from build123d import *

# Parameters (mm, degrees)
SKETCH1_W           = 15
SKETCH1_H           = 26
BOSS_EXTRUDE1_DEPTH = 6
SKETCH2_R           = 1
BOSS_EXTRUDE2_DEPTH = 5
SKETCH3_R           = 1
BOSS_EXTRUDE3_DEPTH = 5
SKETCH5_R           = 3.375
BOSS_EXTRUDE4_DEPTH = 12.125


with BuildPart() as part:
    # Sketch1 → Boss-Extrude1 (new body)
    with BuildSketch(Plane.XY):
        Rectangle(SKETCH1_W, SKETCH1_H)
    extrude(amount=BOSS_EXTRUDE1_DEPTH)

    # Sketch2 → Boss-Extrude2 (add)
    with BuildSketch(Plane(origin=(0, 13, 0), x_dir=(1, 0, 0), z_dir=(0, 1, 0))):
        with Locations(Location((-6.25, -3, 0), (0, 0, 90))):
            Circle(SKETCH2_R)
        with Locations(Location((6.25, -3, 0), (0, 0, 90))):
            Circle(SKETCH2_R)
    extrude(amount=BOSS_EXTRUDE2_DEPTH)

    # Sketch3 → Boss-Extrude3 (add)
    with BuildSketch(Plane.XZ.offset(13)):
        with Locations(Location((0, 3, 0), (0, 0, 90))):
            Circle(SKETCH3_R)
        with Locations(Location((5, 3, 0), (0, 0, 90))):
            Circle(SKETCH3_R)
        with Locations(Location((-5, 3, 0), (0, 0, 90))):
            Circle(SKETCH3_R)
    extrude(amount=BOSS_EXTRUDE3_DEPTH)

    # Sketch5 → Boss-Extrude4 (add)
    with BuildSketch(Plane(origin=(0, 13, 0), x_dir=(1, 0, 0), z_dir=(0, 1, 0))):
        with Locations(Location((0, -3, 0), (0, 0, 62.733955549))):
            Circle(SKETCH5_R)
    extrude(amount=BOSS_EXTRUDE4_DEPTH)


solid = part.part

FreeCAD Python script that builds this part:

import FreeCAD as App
import Part
import Sketcher

doc = App.newDocument("Part")
body = doc.addObject("PartDesign::Body", "Body")

# Sketch on XY plane
sketch1 = body.newObject("Sketcher::SketchObject", "Sketch")
sketch1.AttachmentSupport = (doc.getObject("XY_Plane"), [""])
sketch1.MapMode = "FlatFace"
sketch1.addGeometry([
    Part.LineSegment(App.Vector(-8, 13, 0), App.Vector(-8, -13, 0)),
    Part.LineSegment(App.Vector(-8, -13, 0), App.Vector(8, -13, 0)),
    Part.LineSegment(App.Vector(8, -13, 0), App.Vector(8, 13, 0)),
    Part.LineSegment(App.Vector(8, 13, 0), App.Vector(-8, 13, 0)),
], False)
sketch1.addConstraint([
    Sketcher.Constraint("Coincident", 0, 2, 1, 1),
    Sketcher.Constraint("Coincident", 1, 2, 2, 1),
    Sketcher.Constraint("Coincident", 2, 2, 3, 1),
    Sketcher.Constraint("Coincident", 3, 2, 0, 1),
    Sketcher.Constraint("Vertical", 0),
    Sketcher.Constraint("Horizontal", 1),
    Sketcher.Constraint("Vertical", 2),
    Sketcher.Constraint("Horizontal", 3),
    Sketcher.Constraint("Symmetric", 0, 2, 2, 2, -1, 1),
    Sketcher.Constraint("DistanceX", 1, 1, 1, 2, 15.0),
    Sketcher.Constraint("DistanceY", 0, 2, 0, 1, 26.0),
])
pad1 = body.newObject("PartDesign::Pad", "Pad")
pad1.Profile = sketch1
pad1.Length = 6

# Sketch on XZ plane
sketch2 = body.newObject("Sketcher::SketchObject", "Sketch001")
sketch2.AttachmentSupport = (doc.getObject("XZ_Plane"), [""])
sketch2.MapMode = "FlatFace"
sketch2.AttachmentOffset = App.Placement(App.Vector(0, 0, -13), App.Rotation())
sketch2.addGeometry([
    Part.Circle(App.Vector(-6.2, 3, 0), App.Vector(0, 0, 1), 1),
    Part.Circle(App.Vector(6.2, 3, 0), App.Vector(0, 0, 1), 1),
], False)
sketch2.addConstraint([
    Sketcher.Constraint("Equal", 0, 1),
    Sketcher.Constraint("Symmetric", 0, 3, 1, 3, -2),
    Sketcher.Constraint("Diameter", 0, 2.0),
    Sketcher.Constraint("DistanceY", -1, 1, 0, 3, 3.0),
    Sketcher.Constraint("DistanceX", 0, 3, 1, 3, 12.5),
])
pad2 = body.newObject("PartDesign::Pad", "Pad001")
pad2.Profile = sketch2
pad2.Length = 5
pad2.Reversed = True

# Sketch on XZ plane
sketch3 = body.newObject("Sketcher::SketchObject", "Sketch002")
sketch3.AttachmentSupport = (doc.getObject("XZ_Plane"), [""])
sketch3.MapMode = "FlatFace"
sketch3.AttachmentOffset = App.Placement(App.Vector(0, 0, 13), App.Rotation())
sketch3.addGeometry([
    Part.Circle(App.Vector(0, 3, 0), App.Vector(0, 0, 1), 1),
    Part.Circle(App.Vector(5, 3, 0), App.Vector(0, 0, 1), 1),
    Part.Circle(App.Vector(-5, 3, 0), App.Vector(0, 0, 1), 1),
], False)
sketch3.addConstraint([
    Sketcher.Constraint("Equal", 0, 1),
    Sketcher.Constraint("Equal", 1, 2),
    Sketcher.Constraint("Symmetric", 1, 3, 2, 3, -2),
    Sketcher.Constraint("PointOnObject", 0, 3, -2),
    Sketcher.Constraint("Horizontal", 0, 3, 1, 3),
    Sketcher.Constraint("Diameter", 0, 2.0),
    Sketcher.Constraint("DistanceY", -1, 1, 0, 3, 3.0),
    Sketcher.Constraint("DistanceX", -1, 1, 1, 3, 5.0),
])
pad3 = body.newObject("PartDesign::Pad", "Pad002")
pad3.Profile = sketch3
pad3.Length = 5

# Sketch on XZ plane
sketch4 = body.newObject("Sketcher::SketchObject", "Sketch003")
sketch4.AttachmentSupport = (doc.getObject("XZ_Plane"), [""])
sketch4.MapMode = "FlatFace"
sketch4.AttachmentOffset = App.Placement(App.Vector(0, 0, -13), App.Rotation())
sketch4.addGeometry(Part.Circle(App.Vector(0, 3, 0), App.Vector(0, 0, 1), 3.4), False)
sketch4.addConstraint([
    Sketcher.Constraint("PointOnObject", 0, 3, -2),
    Sketcher.Constraint("Diameter", 0, 6.75),
    Sketcher.Constraint("DistanceY", -1, 1, 0, 3, 3.0),
])
pad4 = body.newObject("PartDesign::Pad", "Pad003")
pad4.Profile = sketch4
pad4.Length = 12.125
pad4.Reversed = True

doc.recompute()
